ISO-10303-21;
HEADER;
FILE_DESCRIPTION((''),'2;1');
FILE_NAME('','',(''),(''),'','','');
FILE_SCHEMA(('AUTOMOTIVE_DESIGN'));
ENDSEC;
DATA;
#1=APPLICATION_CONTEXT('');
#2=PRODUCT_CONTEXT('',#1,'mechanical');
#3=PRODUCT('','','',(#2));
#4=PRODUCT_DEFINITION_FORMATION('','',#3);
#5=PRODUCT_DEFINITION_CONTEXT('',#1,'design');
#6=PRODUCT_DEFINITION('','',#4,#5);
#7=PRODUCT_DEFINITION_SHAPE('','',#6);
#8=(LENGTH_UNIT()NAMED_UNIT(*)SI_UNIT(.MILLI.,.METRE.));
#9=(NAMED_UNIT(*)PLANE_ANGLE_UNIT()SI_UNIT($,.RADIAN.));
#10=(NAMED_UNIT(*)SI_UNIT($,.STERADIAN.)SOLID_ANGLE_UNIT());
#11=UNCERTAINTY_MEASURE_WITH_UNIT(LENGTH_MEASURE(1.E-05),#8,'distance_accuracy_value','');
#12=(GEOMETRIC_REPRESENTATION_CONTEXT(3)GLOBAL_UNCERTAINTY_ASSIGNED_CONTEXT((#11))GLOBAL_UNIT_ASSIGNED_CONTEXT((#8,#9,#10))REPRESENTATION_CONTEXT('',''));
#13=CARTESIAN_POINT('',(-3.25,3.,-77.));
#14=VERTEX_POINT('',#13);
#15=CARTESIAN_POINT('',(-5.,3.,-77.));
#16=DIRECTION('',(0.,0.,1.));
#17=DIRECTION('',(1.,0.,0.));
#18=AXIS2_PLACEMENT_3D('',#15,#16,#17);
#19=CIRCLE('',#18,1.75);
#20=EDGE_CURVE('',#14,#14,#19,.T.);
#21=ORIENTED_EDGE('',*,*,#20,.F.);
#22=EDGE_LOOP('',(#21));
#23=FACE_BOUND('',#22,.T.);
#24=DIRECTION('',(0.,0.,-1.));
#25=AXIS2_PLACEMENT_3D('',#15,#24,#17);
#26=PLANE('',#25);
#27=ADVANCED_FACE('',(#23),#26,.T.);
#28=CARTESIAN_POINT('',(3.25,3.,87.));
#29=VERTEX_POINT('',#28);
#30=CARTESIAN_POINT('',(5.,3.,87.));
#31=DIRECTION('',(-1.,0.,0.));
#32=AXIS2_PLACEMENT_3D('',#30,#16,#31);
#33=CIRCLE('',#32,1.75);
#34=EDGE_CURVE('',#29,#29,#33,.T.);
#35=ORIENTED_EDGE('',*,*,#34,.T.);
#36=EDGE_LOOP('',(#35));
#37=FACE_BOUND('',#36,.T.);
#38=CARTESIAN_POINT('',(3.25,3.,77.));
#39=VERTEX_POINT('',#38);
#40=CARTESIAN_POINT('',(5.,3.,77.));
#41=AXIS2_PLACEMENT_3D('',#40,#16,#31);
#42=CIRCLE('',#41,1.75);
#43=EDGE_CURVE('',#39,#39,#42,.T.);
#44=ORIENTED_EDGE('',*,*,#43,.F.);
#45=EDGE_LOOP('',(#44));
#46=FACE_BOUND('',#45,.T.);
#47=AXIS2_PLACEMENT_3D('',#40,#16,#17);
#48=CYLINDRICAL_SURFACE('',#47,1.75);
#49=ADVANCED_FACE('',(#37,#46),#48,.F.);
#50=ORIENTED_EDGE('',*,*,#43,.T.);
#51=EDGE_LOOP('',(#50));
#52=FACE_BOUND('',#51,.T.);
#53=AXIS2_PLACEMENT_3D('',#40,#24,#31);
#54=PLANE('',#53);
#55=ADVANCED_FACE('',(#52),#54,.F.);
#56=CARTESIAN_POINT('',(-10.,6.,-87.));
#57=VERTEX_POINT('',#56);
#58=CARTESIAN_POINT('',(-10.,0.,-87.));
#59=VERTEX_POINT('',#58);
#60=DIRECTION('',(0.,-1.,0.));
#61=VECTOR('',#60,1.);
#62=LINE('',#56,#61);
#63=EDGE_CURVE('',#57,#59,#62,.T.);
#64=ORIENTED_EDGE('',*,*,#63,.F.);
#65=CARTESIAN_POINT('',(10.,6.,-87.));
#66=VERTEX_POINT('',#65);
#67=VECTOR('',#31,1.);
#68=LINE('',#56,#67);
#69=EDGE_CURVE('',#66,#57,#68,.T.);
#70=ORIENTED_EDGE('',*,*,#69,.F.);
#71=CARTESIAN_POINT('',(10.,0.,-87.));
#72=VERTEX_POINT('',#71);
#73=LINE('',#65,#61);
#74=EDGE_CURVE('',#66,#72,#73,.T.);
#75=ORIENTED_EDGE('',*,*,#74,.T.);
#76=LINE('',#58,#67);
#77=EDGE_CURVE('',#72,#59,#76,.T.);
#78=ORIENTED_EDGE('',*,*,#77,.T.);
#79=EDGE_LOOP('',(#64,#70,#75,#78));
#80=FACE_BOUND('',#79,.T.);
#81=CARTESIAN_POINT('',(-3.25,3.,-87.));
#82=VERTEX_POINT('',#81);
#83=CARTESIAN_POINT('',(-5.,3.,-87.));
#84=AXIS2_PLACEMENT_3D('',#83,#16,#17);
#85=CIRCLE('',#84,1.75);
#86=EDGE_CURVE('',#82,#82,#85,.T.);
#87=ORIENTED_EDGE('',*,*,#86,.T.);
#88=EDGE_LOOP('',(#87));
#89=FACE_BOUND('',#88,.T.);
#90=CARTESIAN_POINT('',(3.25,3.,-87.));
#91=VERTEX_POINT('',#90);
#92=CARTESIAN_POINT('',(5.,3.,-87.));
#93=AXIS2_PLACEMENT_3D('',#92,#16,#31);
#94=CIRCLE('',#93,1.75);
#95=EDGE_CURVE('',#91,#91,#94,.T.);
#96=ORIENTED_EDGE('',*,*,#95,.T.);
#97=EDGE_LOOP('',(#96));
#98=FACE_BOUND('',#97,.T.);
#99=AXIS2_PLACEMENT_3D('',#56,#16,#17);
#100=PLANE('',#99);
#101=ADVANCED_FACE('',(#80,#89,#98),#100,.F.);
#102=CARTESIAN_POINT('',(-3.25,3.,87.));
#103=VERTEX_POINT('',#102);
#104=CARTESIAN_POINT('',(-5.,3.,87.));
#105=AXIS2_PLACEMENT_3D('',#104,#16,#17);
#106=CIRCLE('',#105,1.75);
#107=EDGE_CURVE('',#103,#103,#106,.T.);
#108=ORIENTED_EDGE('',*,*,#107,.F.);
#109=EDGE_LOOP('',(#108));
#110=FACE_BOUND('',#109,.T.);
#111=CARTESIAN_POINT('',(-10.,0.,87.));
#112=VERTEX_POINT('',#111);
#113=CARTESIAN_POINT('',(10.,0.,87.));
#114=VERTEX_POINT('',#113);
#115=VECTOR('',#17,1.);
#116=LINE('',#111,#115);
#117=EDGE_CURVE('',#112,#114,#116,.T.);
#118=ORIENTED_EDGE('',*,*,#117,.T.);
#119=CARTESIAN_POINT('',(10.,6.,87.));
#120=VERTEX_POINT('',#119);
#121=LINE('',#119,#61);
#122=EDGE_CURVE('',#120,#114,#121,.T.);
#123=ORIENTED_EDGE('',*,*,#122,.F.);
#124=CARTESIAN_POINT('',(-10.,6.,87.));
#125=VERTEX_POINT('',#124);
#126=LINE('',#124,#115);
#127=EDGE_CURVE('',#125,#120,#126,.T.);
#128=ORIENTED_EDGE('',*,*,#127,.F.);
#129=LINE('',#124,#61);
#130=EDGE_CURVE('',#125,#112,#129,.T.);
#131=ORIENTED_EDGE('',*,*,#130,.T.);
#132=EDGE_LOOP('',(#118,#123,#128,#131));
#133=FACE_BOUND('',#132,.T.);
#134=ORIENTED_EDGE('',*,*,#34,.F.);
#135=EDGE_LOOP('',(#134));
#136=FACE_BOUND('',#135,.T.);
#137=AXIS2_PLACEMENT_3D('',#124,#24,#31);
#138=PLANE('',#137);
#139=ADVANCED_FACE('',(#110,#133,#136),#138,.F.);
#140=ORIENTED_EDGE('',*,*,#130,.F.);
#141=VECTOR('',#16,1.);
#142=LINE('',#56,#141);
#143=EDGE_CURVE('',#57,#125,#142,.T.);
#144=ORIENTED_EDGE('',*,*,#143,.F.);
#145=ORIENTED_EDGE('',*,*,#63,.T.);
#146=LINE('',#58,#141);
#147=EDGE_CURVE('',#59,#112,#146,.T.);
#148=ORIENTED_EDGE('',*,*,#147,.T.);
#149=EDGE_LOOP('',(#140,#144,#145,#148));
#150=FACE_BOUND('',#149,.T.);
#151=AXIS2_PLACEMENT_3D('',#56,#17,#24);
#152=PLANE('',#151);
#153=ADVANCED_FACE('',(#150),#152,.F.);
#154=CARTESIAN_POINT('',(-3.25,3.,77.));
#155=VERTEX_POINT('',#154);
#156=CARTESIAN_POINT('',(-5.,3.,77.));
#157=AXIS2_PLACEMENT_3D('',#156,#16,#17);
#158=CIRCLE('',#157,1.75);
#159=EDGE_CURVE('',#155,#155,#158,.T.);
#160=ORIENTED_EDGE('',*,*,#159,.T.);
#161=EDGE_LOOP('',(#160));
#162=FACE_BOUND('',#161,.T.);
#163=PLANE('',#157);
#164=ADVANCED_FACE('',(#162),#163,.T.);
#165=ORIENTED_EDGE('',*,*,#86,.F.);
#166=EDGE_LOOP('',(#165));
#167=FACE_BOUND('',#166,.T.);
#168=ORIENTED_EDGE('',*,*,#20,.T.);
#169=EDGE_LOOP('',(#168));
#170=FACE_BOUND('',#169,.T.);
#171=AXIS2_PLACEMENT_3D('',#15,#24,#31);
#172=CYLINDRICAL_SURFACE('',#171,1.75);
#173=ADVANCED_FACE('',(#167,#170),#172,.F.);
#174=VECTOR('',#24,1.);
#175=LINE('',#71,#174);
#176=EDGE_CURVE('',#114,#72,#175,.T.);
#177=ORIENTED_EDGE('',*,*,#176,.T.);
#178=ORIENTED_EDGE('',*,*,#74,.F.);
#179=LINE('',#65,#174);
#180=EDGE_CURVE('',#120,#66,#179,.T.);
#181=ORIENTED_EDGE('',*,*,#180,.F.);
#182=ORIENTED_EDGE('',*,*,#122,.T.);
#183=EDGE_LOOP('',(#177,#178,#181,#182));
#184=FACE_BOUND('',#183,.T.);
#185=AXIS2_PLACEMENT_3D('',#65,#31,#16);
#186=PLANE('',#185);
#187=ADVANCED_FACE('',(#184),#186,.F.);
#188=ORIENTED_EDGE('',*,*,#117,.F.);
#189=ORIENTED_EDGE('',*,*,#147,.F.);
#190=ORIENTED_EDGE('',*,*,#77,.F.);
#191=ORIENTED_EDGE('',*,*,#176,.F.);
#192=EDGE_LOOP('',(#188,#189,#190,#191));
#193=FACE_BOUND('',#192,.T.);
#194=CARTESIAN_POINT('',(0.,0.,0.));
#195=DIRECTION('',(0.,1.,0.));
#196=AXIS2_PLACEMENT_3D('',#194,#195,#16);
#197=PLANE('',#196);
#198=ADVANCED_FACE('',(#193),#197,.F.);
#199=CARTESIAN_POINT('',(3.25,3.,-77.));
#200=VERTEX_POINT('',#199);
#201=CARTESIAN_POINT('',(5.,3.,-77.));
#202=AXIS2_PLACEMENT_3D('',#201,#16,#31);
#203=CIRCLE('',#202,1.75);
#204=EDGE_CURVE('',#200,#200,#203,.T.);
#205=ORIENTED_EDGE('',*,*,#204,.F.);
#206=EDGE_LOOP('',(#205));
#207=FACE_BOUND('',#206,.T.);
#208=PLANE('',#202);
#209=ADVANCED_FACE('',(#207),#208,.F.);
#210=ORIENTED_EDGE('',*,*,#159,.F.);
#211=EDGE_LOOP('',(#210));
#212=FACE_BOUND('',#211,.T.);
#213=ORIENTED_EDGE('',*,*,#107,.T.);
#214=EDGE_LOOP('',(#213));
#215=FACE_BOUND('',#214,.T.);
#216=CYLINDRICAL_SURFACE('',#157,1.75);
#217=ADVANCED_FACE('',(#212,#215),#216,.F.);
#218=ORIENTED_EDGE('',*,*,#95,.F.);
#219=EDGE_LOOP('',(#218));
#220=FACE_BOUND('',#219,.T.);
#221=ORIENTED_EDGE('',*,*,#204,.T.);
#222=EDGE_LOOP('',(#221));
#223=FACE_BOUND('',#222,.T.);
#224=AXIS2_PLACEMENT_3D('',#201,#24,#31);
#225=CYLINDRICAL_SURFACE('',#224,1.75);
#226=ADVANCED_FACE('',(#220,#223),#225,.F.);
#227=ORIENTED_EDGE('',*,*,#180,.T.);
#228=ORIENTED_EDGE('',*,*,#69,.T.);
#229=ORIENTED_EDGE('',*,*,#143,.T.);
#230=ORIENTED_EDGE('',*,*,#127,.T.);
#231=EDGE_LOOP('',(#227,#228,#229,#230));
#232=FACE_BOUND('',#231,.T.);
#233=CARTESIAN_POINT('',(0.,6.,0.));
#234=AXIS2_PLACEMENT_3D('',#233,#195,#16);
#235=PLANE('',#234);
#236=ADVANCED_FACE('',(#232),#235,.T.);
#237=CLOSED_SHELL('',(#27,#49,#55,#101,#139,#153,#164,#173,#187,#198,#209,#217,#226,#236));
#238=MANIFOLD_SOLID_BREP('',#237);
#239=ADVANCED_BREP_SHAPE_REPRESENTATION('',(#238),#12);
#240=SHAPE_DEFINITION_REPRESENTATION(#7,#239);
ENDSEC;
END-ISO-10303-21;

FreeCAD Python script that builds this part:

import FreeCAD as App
import Part
import Sketcher

V = App.Vector


def add_polygon(sketch, points):
    """Adds a closed chain of lines whose ends are joined by coincident constraints."""
    first, n = sketch.GeometryCount, len(points)
    for a, b in zip(points, points[1:] + points[:1]):
        sketch.addGeometry(Part.LineSegment(App.Vector(*a, 0), App.Vector(*b, 0)), False)
    for i in range(n):
        sketch.addConstraint(Sketcher.Constraint("Coincident", first + i, 2, first + (i + 1) % n, 1))

doc = App.newDocument("Part")
body = doc.addObject("PartDesign::Body", "Body")

sketch1 = body.newObject("Sketcher::SketchObject", "Sketch")
sketch1.AttachmentSupport = (doc.getObject("XZ_Plane"), [""])
sketch1.MapMode = "FlatFace"
add_polygon(sketch1, [(-10, -87), (-10, 87), (10, 87), (10, -87)])
sketch1.addConstraint([
    Sketcher.Constraint("Vertical", 0),
    Sketcher.Constraint("Horizontal", 1),
    Sketcher.Constraint("Vertical", 2),
    Sketcher.Constraint("Horizontal", 3),
    Sketcher.Constraint("Symmetric", 0, 2, 2, 2, -1, 1),
    Sketcher.Constraint("DistanceX", 1, 1, 1, 2, 20.0),
    Sketcher.Constraint("DistanceY", 0, 1, 0, 2, 174.0),
])
pad1 = body.newObject("PartDesign::Pad", "Pad")
pad1.Profile = sketch1
pad1.Length = 6
pad1.Reversed = True

sketch2 = body.newObject("Sketcher::SketchObject", "Sketch001")
sketch2.AttachmentSupport = (doc.getObject("XY_Plane"), [""])
sketch2.MapMode = "FlatFace"
sketch2.AttachmentOffset = App.Placement(V(0, 0, 87), App.Rotation())
sketch2.addGeometry([
    Part.Circle(V(-5, 3, 0), V(0, 0, 1), 1.8),
    Part.Circle(V(5, 3, 0), V(0, 0, 1), 1.8),
], False)
sketch2.addConstraint([
    Sketcher.Constraint("Equal", 0, 1),
    Sketcher.Constraint("Symmetric", 0, 3, 1, 3, -2),
    Sketcher.Constraint("Diameter", 0, 3.5),
    Sketcher.Constraint("DistanceX", 0, 3, -1, 1, 5.0),
    Sketcher.Constraint("DistanceY", -1, 1, 0, 3, 3.0),
])
pocket1 = body.newObject("PartDesign::Pocket", "Pocket")
pocket1.Profile = sketch2
pocket1.Length = 10
doc.recompute()

mirrored = body.newObject("PartDesign::Mirrored", "Mirrored")
mirrored.Originals = [pocket1]
mirrored.MirrorPlane = (doc.getObject("XY_Plane"), [""])
body.Tip = mirrored

doc.recompute()
